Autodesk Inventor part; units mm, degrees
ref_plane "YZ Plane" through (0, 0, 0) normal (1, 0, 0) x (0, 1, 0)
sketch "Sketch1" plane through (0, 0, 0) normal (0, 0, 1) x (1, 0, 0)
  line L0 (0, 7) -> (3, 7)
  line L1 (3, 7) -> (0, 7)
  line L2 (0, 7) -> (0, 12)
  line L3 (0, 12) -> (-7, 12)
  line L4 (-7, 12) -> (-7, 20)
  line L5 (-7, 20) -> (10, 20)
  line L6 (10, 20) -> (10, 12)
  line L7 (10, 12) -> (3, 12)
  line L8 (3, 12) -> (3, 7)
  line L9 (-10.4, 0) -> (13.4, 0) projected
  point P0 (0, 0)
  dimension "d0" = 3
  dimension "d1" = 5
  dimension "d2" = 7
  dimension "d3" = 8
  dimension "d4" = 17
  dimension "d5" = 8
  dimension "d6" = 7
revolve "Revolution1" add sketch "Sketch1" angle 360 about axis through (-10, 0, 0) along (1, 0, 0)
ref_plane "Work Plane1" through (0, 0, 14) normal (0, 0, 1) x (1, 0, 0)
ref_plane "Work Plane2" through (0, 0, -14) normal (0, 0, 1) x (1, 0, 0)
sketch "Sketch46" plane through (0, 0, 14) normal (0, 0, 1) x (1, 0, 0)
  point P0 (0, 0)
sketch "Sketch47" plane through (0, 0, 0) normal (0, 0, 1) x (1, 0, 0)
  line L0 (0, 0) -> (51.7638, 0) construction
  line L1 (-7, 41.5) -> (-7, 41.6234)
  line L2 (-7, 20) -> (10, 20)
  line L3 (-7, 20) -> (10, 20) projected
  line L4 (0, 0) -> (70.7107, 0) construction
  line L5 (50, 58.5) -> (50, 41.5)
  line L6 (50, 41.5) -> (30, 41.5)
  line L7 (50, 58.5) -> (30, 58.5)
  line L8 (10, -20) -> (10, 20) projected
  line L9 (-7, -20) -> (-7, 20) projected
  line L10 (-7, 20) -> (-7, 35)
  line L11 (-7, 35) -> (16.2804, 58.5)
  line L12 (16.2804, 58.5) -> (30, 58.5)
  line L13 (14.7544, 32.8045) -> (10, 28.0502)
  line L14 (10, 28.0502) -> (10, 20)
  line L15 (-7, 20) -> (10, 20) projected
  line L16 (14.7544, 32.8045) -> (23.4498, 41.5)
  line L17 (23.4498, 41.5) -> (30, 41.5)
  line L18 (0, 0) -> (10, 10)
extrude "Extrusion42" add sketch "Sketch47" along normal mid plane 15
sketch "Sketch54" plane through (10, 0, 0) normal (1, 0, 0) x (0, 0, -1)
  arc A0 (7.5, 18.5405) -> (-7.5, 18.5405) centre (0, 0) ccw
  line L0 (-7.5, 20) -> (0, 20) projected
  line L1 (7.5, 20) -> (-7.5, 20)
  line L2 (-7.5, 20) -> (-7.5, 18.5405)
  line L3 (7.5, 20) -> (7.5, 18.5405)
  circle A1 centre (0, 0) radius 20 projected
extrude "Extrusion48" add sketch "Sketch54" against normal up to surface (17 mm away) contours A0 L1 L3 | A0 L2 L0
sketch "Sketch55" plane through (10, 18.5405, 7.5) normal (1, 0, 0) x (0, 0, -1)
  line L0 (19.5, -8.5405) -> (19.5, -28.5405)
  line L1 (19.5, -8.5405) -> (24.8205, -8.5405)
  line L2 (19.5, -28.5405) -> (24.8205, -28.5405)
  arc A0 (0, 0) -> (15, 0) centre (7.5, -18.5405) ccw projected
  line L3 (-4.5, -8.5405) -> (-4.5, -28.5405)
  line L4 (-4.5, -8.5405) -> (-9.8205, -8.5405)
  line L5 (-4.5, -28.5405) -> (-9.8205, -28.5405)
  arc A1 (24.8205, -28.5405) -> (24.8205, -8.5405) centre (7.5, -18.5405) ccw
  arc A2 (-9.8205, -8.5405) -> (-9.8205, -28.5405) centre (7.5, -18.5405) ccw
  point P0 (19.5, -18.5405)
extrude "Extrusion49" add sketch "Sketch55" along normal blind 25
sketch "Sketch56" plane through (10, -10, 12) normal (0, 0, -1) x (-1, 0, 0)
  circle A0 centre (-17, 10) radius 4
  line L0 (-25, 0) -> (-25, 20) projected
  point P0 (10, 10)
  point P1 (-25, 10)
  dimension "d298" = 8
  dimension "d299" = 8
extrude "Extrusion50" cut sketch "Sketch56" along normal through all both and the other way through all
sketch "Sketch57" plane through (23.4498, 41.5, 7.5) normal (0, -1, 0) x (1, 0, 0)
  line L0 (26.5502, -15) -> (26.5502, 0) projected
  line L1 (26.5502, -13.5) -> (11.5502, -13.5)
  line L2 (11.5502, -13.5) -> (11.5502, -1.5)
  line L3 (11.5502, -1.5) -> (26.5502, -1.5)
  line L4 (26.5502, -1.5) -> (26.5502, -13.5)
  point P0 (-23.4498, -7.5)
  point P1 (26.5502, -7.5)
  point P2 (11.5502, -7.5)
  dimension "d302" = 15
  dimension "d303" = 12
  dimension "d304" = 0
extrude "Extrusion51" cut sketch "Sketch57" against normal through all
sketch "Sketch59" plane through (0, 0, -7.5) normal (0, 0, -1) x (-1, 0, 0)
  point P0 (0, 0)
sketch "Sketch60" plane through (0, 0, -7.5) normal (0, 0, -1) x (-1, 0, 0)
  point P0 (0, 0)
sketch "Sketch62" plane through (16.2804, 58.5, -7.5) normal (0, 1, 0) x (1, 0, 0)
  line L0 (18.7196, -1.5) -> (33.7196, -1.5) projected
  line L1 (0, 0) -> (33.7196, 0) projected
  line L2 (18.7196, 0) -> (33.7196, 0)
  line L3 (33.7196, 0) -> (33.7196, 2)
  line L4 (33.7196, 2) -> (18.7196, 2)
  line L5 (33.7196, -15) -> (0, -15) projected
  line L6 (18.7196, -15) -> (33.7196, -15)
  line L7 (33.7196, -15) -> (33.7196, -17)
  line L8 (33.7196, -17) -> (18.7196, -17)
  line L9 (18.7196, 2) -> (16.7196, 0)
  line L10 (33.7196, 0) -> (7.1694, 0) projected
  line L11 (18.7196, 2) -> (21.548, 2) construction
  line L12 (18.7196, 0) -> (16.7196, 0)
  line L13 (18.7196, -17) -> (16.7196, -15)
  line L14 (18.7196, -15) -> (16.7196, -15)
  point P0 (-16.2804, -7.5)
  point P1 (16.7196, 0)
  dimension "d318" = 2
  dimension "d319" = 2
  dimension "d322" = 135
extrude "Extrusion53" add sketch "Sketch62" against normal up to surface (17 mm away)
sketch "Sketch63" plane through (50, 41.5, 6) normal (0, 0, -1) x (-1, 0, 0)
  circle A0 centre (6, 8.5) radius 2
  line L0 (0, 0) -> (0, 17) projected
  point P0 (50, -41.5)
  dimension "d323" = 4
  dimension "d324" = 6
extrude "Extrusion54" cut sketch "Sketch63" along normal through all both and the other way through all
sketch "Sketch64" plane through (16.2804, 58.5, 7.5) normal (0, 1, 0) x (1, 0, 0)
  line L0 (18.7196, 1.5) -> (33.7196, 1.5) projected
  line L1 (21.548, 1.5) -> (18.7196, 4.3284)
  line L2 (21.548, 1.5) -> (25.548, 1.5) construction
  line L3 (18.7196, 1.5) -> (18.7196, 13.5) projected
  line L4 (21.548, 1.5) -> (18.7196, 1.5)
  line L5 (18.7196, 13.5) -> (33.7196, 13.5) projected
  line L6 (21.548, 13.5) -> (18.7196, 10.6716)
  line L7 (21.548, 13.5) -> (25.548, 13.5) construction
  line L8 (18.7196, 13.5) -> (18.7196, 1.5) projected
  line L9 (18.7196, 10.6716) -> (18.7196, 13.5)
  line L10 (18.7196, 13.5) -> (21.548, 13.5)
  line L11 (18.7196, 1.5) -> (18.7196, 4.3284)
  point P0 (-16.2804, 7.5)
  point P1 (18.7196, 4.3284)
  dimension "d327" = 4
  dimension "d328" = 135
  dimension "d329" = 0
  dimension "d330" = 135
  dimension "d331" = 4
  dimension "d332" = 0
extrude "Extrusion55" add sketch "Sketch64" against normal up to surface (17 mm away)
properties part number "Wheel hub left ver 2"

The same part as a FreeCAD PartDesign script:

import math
import FreeCAD as App
import Part
import Sketcher
from FreeCAD import Vector
Q = App.Units.Quantity

doc = App.newDocument("Part")
body = doc.addObject("PartDesign::Body", "Body")
body.AllowCompound = True

# Sketch on XY plane
sketch1 = body.newObject("Sketcher::SketchObject", "Sketch")
sketch1.AttachmentSupport = (doc.getObject("XY_Plane"), [""])
sketch1.MapMode = "FlatFace"
sketch1.addGeometry([
    Part.LineSegment(Vector(0, 12, 0), Vector(0, 7, 0)),  # 0
    Part.LineSegment(Vector(0, 7, 0), Vector(3, 7, 0)),  # 1
    Part.LineSegment(Vector(3, 7, 0), Vector(3, 12, 0)),  # 2
    Part.LineSegment(Vector(3, 12, 0), Vector(10, 12, 0)),  # 3
    Part.LineSegment(Vector(10, 12, 0), Vector(10, 20, 0)),  # 4
    Part.LineSegment(Vector(10, 20, 0), Vector(-7, 20, 0)),  # 5
    Part.LineSegment(Vector(-7, 20, 0), Vector(-7, 12, 0)),  # 6
    Part.LineSegment(Vector(-7, 12, 0), Vector(0, 12, 0)),  # 7
], False)
sketch1.addConstraint([
    Sketcher.Constraint("Coincident", 0, 2, 1, 1),
    Sketcher.Constraint("Coincident", 1, 2, 2, 1),
    Sketcher.Constraint("Coincident", 2, 2, 3, 1),
    Sketcher.Constraint("Coincident", 3, 2, 4, 1),
    Sketcher.Constraint("Coincident", 4, 2, 5, 1),
    Sketcher.Constraint("Coincident", 5, 2, 6, 1),
    Sketcher.Constraint("Coincident", 6, 2, 7, 1),
    Sketcher.Constraint("Coincident", 7, 2, 0, 1),
    Sketcher.Constraint("Vertical", 0),
    Sketcher.Constraint("Horizontal", 1),
    Sketcher.Constraint("Vertical", 2),
    Sketcher.Constraint("Horizontal", 3),
    Sketcher.Constraint("Vertical", 4),
    Sketcher.Constraint("Horizontal", 5),
    Sketcher.Constraint("Vertical", 6),
    Sketcher.Constraint("Horizontal", 7),
    Sketcher.Constraint("PointOnObject", 0, 2, -2),
    Sketcher.Constraint("Horizontal", 3, 2, 6, 2),
    Sketcher.Constraint("Equal", 3, 7),
    Sketcher.Constraint("DistanceX", 1, 1, 1, 2, Q("3 mm")),
    Sketcher.Constraint("DistanceX", 3, 1, 3, 2, Q("7 mm")),
    Sketcher.Constraint("DistanceY", 0, 2, 0, 1, Q("5 mm")),
    Sketcher.Constraint("DistanceY", 4, 1, 4, 2, Q("8 mm")),
    Sketcher.Constraint("DistanceY", -1, 1, 0, 2, Q("7 mm")),
])
revolution = body.newObject("PartDesign::Revolution", "Revolution")
revolution.Profile = sketch1
revolution.ReferenceAxis = (sketch1, ["H_Axis"])
revolution.Angle = 360

# Sketch on XY plane
sketch2 = body.newObject("Sketcher::SketchObject", "Sketch001")
sketch2.AttachmentSupport = (doc.getObject("XY_Plane"), [""])
sketch2.MapMode = "FlatFace"
sketch2.addGeometry([
    Part.LineSegment(Vector(-7, 35, 0), Vector(-7, 20, 0)),  # 0
    Part.LineSegment(Vector(-7, 20, 0), Vector(10, 20, 0)),  # 1
    Part.LineSegment(Vector(10, 20, 0), Vector(10, 28, 0)),  # 2
    Part.LineSegment(Vector(10, 28, 0), Vector(15, 33, 0)),  # 3
    Part.LineSegment(Vector(15, 33, 0), Vector(23, 42, 0)),  # 4
    Part.LineSegment(Vector(23, 42, 0), Vector(50, 42, 0)),  # 5
    Part.LineSegment(Vector(50, 42, 0), Vector(50, 58, 0)),  # 6
    Part.LineSegment(Vector(50, 58, 0), Vector(16, 58, 0)),  # 7
    Part.LineSegment(Vector(16, 58, 0), Vector(-7, 35, 0)),  # 8
], False)
sketch2.addConstraint([
    Sketcher.Constraint("Coincident", 0, 2, 1, 1),
    Sketcher.Constraint("Coincident", 1, 2, 2, 1),
    Sketcher.Constraint("Coincident", 2, 2, 3, 1),
    Sketcher.Constraint("Coincident", 3, 2, 4, 1),
    Sketcher.Constraint("Coincident", 4, 2, 5, 1),
    Sketcher.Constraint("Coincident", 5, 2, 6, 1),
    Sketcher.Constraint("Coincident", 6, 2, 7, 1),
    Sketcher.Constraint("Coincident", 7, 2, 8, 1),
    Sketcher.Constraint("Coincident", 8, 2, 0, 1),
    Sketcher.Constraint("Vertical", 0),
    Sketcher.Constraint("Horizontal", 1),
    Sketcher.Constraint("Vertical", 2),
    Sketcher.Constraint("Horizontal", 5),
    Sketcher.Constraint("Vertical", 6),
    Sketcher.Constraint("Horizontal", 7),
    Sketcher.Constraint("Parallel", 3, 4),
    Sketcher.Constraint("Equal", 1, 6),
    Sketcher.Constraint("DistanceX", 1, 1, 1, 2, Q("17 mm")),
    Sketcher.Constraint("DistanceY", 0, 2, 0, 1, Q("15 mm")),
    Sketcher.Constraint("Angle", 3, Q("44.9994 deg")),
    Sketcher.Constraint("DistanceX", 0, 2, -1, 1, Q("7 mm")),
    Sketcher.Constraint("DistanceY", -1, 1, 0, 2, Q("20 mm")),
    Sketcher.Constraint("DistanceX", -1, 1, 5, 2, Q("50 mm")),
    Sketcher.Constraint("DistanceY", -1, 1, 4, 2, Q("41.5 mm")),
    Sketcher.Constraint("Angle", 8, Q("-134.731 deg")),
    Sketcher.Constraint("DistanceX", 5, 1, 5, 2, Q("26.5502 mm")),
    Sketcher.Constraint("DistanceX", 3, 2, 7, 2, Q("1.526 mm")),
])
pad1 = body.newObject("PartDesign::Pad", "Pad")
pad1.Profile = sketch2
pad1.Length = 15
pad1.Midplane = True

# Sketch on YZ plane
sketch3 = body.newObject("Sketcher::SketchObject", "Sketch002")
sketch3.AttachmentSupport = (doc.getObject("YZ_Plane"), [""])
sketch3.MapMode = "FlatFace"
sketch3.AttachmentOffset = App.Placement(Vector(0, 0, 10), App.Rotation())
sketch3.addGeometry([
    Part.ArcOfCircle(Part.Circle(Vector(0, 0, 0), Vector(0, 0, 1), 20), math.radians(-22), math.radians(0)),  # 0
    Part.LineSegment(Vector(18.5, -7.5, 0), Vector(20, -7.5, 0)),  # 1
    Part.LineSegment(Vector(20, -7.5, 0), Vector(20, 0, 0)),  # 2
    Part.ArcOfCircle(Part.Circle(Vector(0, 0, 0), Vector(0, 0, 1), 20), math.radians(0), math.radians(22)),  # 3
    Part.LineSegment(Vector(20, 0, 0), Vector(20, 7.5, 0)),  # 4
    Part.LineSegment(Vector(20, 7.5, 0), Vector(18.5, 7.5, 0)),  # 5
], False)
sketch3.addConstraint([
    Sketcher.Constraint("Coincident", 0, 1, 1, 1),
    Sketcher.Constraint("Coincident", 1, 2, 2, 1),
    Sketcher.Constraint("Tangent", 2, 2, 0, 2),
    Sketcher.Constraint("Tangent", 3, 1, 4, 1),
    Sketcher.Constraint("Coincident", 4, 2, 5, 1),
    Sketcher.Constraint("Coincident", 5, 2, 3, 2),
    Sketcher.Constraint("Horizontal", 1),
    Sketcher.Constraint("Vertical", 2),
    Sketcher.Constraint("Vertical", 4),
    Sketcher.Constraint("Horizontal", 5),
    Sketcher.Constraint("Coincident", 0, 3, -1, 1),
    Sketcher.Constraint("Coincident", 3, 3, -1, 1),
    Sketcher.Constraint("Equal", 0, 3),
    Sketcher.Constraint("Vertical", 0, 1, 5, 2),
    Sketcher.Constraint("Radius", 0, Q("20 mm")),
    Sketcher.Constraint("DistanceY", 2, 1, 2, 2, Q("7.5 mm")),
])
pad2 = body.newObject("PartDesign::Pad", "Pad001")
pad2.Profile = sketch3
pad2.Length = 17
pad2.Reversed = True

# Sketch on YZ plane
sketch4 = body.newObject("Sketcher::SketchObject", "Sketch003")
sketch4.AttachmentSupport = (doc.getObject("YZ_Plane"), [""])
sketch4.MapMode = "FlatFace"
sketch4.AttachmentOffset = App.Placement(Vector(0, 0, 10), App.Rotation())
sketch4.addGeometry([
    Part.LineSegment(Vector(10, -17, 0), Vector(10, -12, 0)),  # 0
    Part.LineSegment(Vector(10, -12, 0), Vector(-10, -12, 0)),  # 1
    Part.LineSegment(Vector(-10, -12, 0), Vector(-10, -17, 0)),  # 2
    Part.ArcOfCircle(Part.Circle(Vector(0, 0, 0), Vector(0, 0, 1), 20), math.radians(-120), math.radians(-60)),  # 3
    Part.ArcOfCircle(Part.Circle(Vector(0, 0, 0), Vector(0, 0, 1), 20), math.radians(60), math.radians(120)),  # 4
    Part.LineSegment(Vector(-10, 17, 0), Vector(-10, 12, 0)),  # 5
    Part.LineSegment(Vector(-10, 12, 0), Vector(10, 12, 0)),  # 6
    Part.LineSegment(Vector(10, 12, 0), Vector(10, 17, 0)),  # 7
], False)
sketch4.addConstraint([
    Sketcher.Constraint("Coincident", 0, 2, 1, 1),
    Sketcher.Constraint("Coincident", 1, 2, 2, 1),
    Sketcher.Constraint("Coincident", 2, 2, 3, 1),
    Sketcher.Constraint("Coincident", 3, 2, 0, 1),
    Sketcher.Constraint("Coincident", 4, 2, 5, 1),
    Sketcher.Constraint("Coincident", 5, 2, 6, 1),
    Sketcher.Constraint("Coincident", 6, 2, 7, 1),
    Sketcher.Constraint("Coincident", 7, 2, 4, 1),
    Sketcher.Constraint("Vertical", 0),
    Sketcher.Constraint("Horizontal", 1),
    Sketcher.Constraint("Vertical", 2),
    Sketcher.Constraint("Vertical", 5),
    Sketcher.Constraint("Horizontal", 6),
    Sketcher.Constraint("Vertical", 7),
    Sketcher.Constraint("Coincident", 3, 3, -1, 1),
    Sketcher.Constraint("Coincident", 4, 3, -1, 1),
    Sketcher.Constraint("Equal", 3, 4),
    Sketcher.Constraint("Symmetric", 0, 2, 5, 2, -1, 1),
    Sketcher.Constraint("Horizontal", 2, 2, 3, 2),
    Sketcher.Constraint("Horizontal", 4, 2, 7, 2),
    Sketcher.Constraint("Radius", 3, Q("20 mm")),
    Sketcher.Constraint("DistanceX", 1, 2, 1, 1, Q("20 mm")),
    Sketcher.Constraint("DistanceY", 0, 2, -1, 1, Q("12 mm")),
])
pad3 = body.newObject("PartDesign::Pad", "Pad002")
pad3.Profile = sketch4
pad3.Length = 25

# Sketch on XY plane
sketch5 = body.newObject("Sketcher::SketchObject", "Sketch004")
sketch5.AttachmentSupport = (doc.getObject("XY_Plane"), [""])
sketch5.MapMode = "FlatFace"
sketch5.AttachmentOffset = App.Placement(Vector(0, 0, 12), App.Rotation())
sketch5.addGeometry(Part.Circle(Vector(27, 0, 0), Vector(0, 0, 1), 4), False)
sketch5.addConstraint([
    Sketcher.Constraint("PointOnObject", 0, 3, -1),
    Sketcher.Constraint("Diameter", 0, Q("8 mm")),
    Sketcher.Constraint("DistanceX", -1, 1, 0, 3, Q("27 mm")),
])
pocket1 = body.newObject("PartDesign::Pocket", "Pocket")
pocket1.Profile = sketch5
pocket1.Type = "ThroughAll"
pocket1.Midplane = True

# Sketch on XZ plane
sketch6 = body.newObject("Sketcher::SketchObject", "Sketch005")
sketch6.AttachmentSupport = (doc.getObject("XZ_Plane"), [""])
sketch6.MapMode = "FlatFace"
sketch6.AttachmentOffset = App.Placement(Vector(0, 0, -41.5), App.Rotation())
sketch6.addGeometry([
    Part.LineSegment(Vector(35, -6, 0), Vector(50, -6, 0)),
    Part.LineSegment(Vector(50, -6, 0), Vector(50, 6, 0)),
    Part.LineSegment(Vector(50, 6, 0), Vector(35, 6, 0)),
    Part.LineSegment(Vector(35, 6, 0), Vector(35, -6, 0)),
], False)
sketch6.addConstraint([
    Sketcher.Constraint("Coincident", 0, 2, 1, 1),
    Sketcher.Constraint("Coincident", 1, 2, 2, 1),
    Sketcher.Constraint("Coincident", 2, 2, 3, 1),
    Sketcher.Constraint("Coincident", 3, 2, 0, 1),
    Sketcher.Constraint("Horizontal", 0),
    Sketcher.Constraint("Vertical", 1),
    Sketcher.Constraint("Horizontal", 2),
    Sketcher.Constraint("Vertical", 3),
    Sketcher.Constraint("DistanceX", 0, 1, 0, 2, Q("15 mm")),
    Sketcher.Constraint("DistanceY", 1, 1, 1, 2, Q("12 mm")),
    Sketcher.Constraint("DistanceX", -1, 1, 0, 2, Q("50 mm")),
    Sketcher.Constraint("DistanceY", 0, 2, -1, 1, Q("6 mm")),
])
pocket2 = body.newObject("PartDesign::Pocket", "Pocket001")
pocket2.Profile = sketch6
pocket2.Type = "ThroughAll"

# Sketch on XZ plane
sketch7 = body.newObject("Sketcher::SketchObject", "Sketch006")
sketch7.AttachmentSupport = (doc.getObject("XZ_Plane"), [""])
sketch7.MapMode = "FlatFace"
sketch7.AttachmentOffset = App.Placement(Vector(0, 0, -58.5), App.Rotation())
sketch7.addGeometry([
    Part.LineSegment(Vector(35, -9.5, 0), Vector(33, -7.5, 0)),  # 0
    Part.LineSegment(Vector(33, -7.5, 0), Vector(50, -7.5, 0)),  # 1
    Part.LineSegment(Vector(50, -7.5, 0), Vector(50, -9.5, 0)),  # 2
    Part.LineSegment(Vector(50, -9.5, 0), Vector(35, -9.5, 0)),  # 3
    Part.LineSegment(Vector(50, 9.5, 0), Vector(50, 7.5, 0)),  # 4
    Part.LineSegment(Vector(50, 7.5, 0), Vector(33, 7.5, 0)),  # 5
    Part.LineSegment(Vector(33, 7.5, 0), Vector(35, 9.5, 0)),  # 6
    Part.LineSegment(Vector(35, 9.5, 0), Vector(50, 9.5, 0)),  # 7
], False)
sketch7.addConstraint([
    Sketcher.Constraint("Coincident", 0, 2, 1, 1),
    Sketcher.Constraint("Coincident", 1, 2, 2, 1),
    Sketcher.Constraint("Coincident", 2, 2, 3, 1),
    Sketcher.Constraint("Coincident", 3, 2, 0, 1),
    Sketcher.Constraint("Coincident", 4, 2, 5, 1),
    Sketcher.Constraint("Coincident", 5, 2, 6, 1),
    Sketcher.Constraint("Coincident", 6, 2, 7, 1),
    Sketcher.Constraint("Coincident", 7, 2, 4, 1),
    Sketcher.Constraint("Horizontal", 1),
    Sketcher.Constraint("Vertical", 2),
    Sketcher.Constraint("Horizontal", 3),
    Sketcher.Constraint("Vertical", 4),
    Sketcher.Constraint("Horizontal", 5),
    Sketcher.Constraint("Horizontal", 7),
    Sketcher.Constraint("Symmetric", 1, 2, 4, 2, -1),
    Sketcher.Constraint("Symmetric", 3, 2, 6, 2, -1),
    Sketcher.Constraint("Perpendicular", 0, 6),
    Sketcher.Constraint("Vertical", 0, 2, 5, 2),
    Sketcher.Constraint("DistanceY", 2, 2, 2, 1, Q("2 mm")),
    Sketcher.Constraint("DistanceX", 1, 1, 1, 2, Q("17 mm")),
    Sketcher.Constraint("DistanceX", -1, 1, 0, 2, Q("33 mm")),
    Sketcher.Constraint("DistanceY", 1, 2, 4, 2, Q("15 mm")),
])
pad4 = body.newObject("PartDesign::Pad", "Pad003")
pad4.Profile = sketch7
pad4.Length = 17

# Sketch on XY plane
sketch8 = body.newObject("Sketcher::SketchObject", "Sketch007")
sketch8.AttachmentSupport = (doc.getObject("XY_Plane"), [""])
sketch8.MapMode = "FlatFace"
sketch8.AttachmentOffset = App.Placement(Vector(0, 0, 6), App.Rotation())
sketch8.addGeometry(Part.Circle(Vector(44, 50, 0), Vector(0, 0, 1), 2), False)
sketch8.addConstraint([
    Sketcher.Constraint("Diameter", 0, Q("4 mm")),
    Sketcher.Constraint("DistanceX", -1, 1, 0, 3, Q("44 mm")),
    Sketcher.Constraint("DistanceY", -1, 1, 0, 3, Q("50 mm")),
])
pocket3 = body.newObject("PartDesign::Pocket", "Pocket002")
pocket3.Profile = sketch8
pocket3.Type = "ThroughAll"
pocket3.Midplane = True

# Sketch on XZ plane
sketch9 = body.newObject("Sketcher::SketchObject", "Sketch008")
sketch9.AttachmentSupport = (doc.getObject("XZ_Plane"), [""])
sketch9.MapMode = "FlatFace"
sketch9.AttachmentOffset = App.Placement(Vector(0, 0, -58.5), App.Rotation())
sketch9.addGeometry([
    Part.LineSegment(Vector(35, 3.2, 0), Vector(35, 6, 0)),  # 0
    Part.LineSegment(Vector(35, 6, 0), Vector(37.8, 6, 0)),  # 1
    Part.LineSegment(Vector(37.8, 6, 0), Vector(35, 3.2, 0)),  # 2
    Part.LineSegment(Vector(35, -6, 0), Vector(35, -3.2, 0)),  # 3
    Part.LineSegment(Vector(35, -3.2, 0), Vector(37.8, -6, 0)),  # 4
    Part.LineSegment(Vector(37.8, -6, 0), Vector(35, -6, 0)),  # 5
], False)
sketch9.addConstraint([
    Sketcher.Constraint("Coincident", 0, 2, 1, 1),
    Sketcher.Constraint("Coincident", 1, 2, 2, 1),
    Sketcher.Constraint("Coincident", 2, 2, 0, 1),
    Sketcher.Constraint("Coincident", 3, 2, 4, 1),
    Sketcher.Constraint("Coincident", 4, 2, 5, 1),
    Sketcher.Constraint("Coincident", 5, 2, 3, 1),
    Sketcher.Constraint("Vertical", 0),
    Sketcher.Constraint("Horizontal", 1),
    Sketcher.Constraint("Vertical", 3),
    Sketcher.Constraint("Horizontal", 5),
    Sketcher.Constraint("Symmetric", 2, 2, 3, 2, -1),
    Sketcher.Constraint("Symmetric", 1, 2, 4, 2, -1),
    Sketcher.Constraint("Perpendicular", 2, 4),
    Sketcher.Constraint("Distance", 2, Q("4 mm")),
    Sketcher.Constraint("DistanceX", -1, 1, 0, 2, Q("35 mm")),
    Sketcher.Constraint("DistanceY", -1, 1, 0, 2, Q("6 mm")),
])
pad5 = body.newObject("PartDesign::Pad", "Pad004")
pad5.Profile = sketch9
pad5.Length = 17

doc.recompute()
